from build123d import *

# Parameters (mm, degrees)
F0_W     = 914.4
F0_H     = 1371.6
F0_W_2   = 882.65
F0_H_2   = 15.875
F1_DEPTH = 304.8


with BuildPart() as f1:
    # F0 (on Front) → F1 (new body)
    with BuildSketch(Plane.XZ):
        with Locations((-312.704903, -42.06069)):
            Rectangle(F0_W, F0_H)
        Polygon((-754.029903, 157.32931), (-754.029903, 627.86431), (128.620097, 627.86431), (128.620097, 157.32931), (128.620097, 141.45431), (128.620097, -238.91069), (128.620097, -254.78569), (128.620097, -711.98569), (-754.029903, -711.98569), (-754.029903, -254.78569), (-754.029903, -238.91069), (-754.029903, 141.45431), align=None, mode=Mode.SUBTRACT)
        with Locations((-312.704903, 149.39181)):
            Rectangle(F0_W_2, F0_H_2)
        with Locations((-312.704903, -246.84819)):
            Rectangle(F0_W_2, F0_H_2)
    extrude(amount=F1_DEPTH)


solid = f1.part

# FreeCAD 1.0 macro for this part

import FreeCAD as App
import Part
import Sketcher
Q = App.Units.Quantity


def add_polygon(sketch, points):
    """Adds a closed chain of lines whose ends are joined by coincident constraints."""
    first, n = sketch.GeometryCount, len(points)
    for a, b in zip(points, points[1:] + points[:1]):
        sketch.addGeometry(Part.LineSegment(App.Vector(*a, 0), App.Vector(*b, 0)), False)
    for i in range(n):
        sketch.addConstraint(Sketcher.Constraint("Coincident", first + i, 2, first + (i + 1) % n, 1))

doc = App.newDocument("Part")
body = doc.addObject("PartDesign::Body", "Body")

# Sketch on XZ plane
sketch1 = doc.addObject("Sketcher::SketchObject", "Sketch")
body.addObject(sketch1)
sketch1.AttachmentSupport = (doc.XZ_Plane, [""])
sketch1.MapMode = "FlatFace"
add_polygon(sketch1, [(-770, 644), (-770, -728), (144, -728), (144, 644)])  # lines 0-3
add_polygon(sketch1, [(-754, -712), (-754, -255), (129, -255), (129, -712)])  # lines 4-7
add_polygon(sketch1, [(-754, -239), (-754, 141), (129, 141), (129, -239)])  # lines 8-11
add_polygon(sketch1, [(-754, 157), (-754, 628), (129, 628), (129, 157)])  # lines 12-15
sketch1.addConstraint(Sketcher.Constraint("Vertical", 0))
sketch1.addConstraint(Sketcher.Constraint("Horizontal", 1))
sketch1.addConstraint(Sketcher.Constraint("Vertical", 2))
sketch1.addConstraint(Sketcher.Constraint("Horizontal", 3))
sketch1.addConstraint(Sketcher.Constraint("Vertical", 4))
sketch1.addConstraint(Sketcher.Constraint("Horizontal", 5))
sketch1.addConstraint(Sketcher.Constraint("Vertical", 6))
sketch1.addConstraint(Sketcher.Constraint("Horizontal", 7))
sketch1.addConstraint(Sketcher.Constraint("Vertical", 8))
sketch1.addConstraint(Sketcher.Constraint("Horizontal", 9))
sketch1.addConstraint(Sketcher.Constraint("Vertical", 10))
sketch1.addConstraint(Sketcher.Constraint("Horizontal", 11))
sketch1.addConstraint(Sketcher.Constraint("Vertical", 12))
sketch1.addConstraint(Sketcher.Constraint("Horizontal", 13))
sketch1.addConstraint(Sketcher.Constraint("Vertical", 14))
sketch1.addConstraint(Sketcher.Constraint("Horizontal", 15))
sketch1.addConstraint(Sketcher.Constraint("Vertical", 7, 2, 8, 2))
sketch1.addConstraint(Sketcher.Constraint("Vertical", 6, 2, 9, 2))
sketch1.addConstraint(Sketcher.Constraint("Vertical", 11, 2, 12, 2))
sketch1.addConstraint(Sketcher.Constraint("Vertical", 10, 2, 13, 2))
sketch1.addConstraint(Sketcher.Constraint("DistanceX", 1, 1, 1, 2, Q("36 in")))
sketch1.addConstraint(Sketcher.Constraint("DistanceY", 0, 2, 0, 1, Q("54 in")))
sketch1.addConstraint(Sketcher.Constraint("DistanceY", 4, 1, 4, 2, Q("18 in")))
sketch1.addConstraint(Sketcher.Constraint("DistanceX", 5, 1, 5, 2, Q("34.75 in")))
sketch1.addConstraint(Sketcher.Constraint("DistanceY", 4, 2, 8, 2, Q("15.6 in")))
sketch1.addConstraint(Sketcher.Constraint("DistanceY", 10, 2, 14, 2, Q("15.6 in")))
sketch1.addConstraint(Sketcher.Constraint("DistanceY", 8, 1, 8, 2, Q("14.975 in")))
sketch1.addConstraint(Sketcher.Constraint("DistanceY", 12, 1, 12, 2, Q("18.525 in")))
sketch1.addConstraint(Sketcher.Constraint("DistanceY", 1, 2, 10, 2, Q("19.25 in")))
sketch1.addConstraint(Sketcher.Constraint("DistanceX", 0, 2, 4, 2, Q("0.625 in")))
sketch1.addConstraint(Sketcher.Constraint("DistanceY", 0, 2, -1, 1, Q("727.86069 mm")))
sketch1.addConstraint(Sketcher.Constraint("DistanceX", 0, 2, -1, 1, Q("769.904903 mm")))
pad1 = doc.addObject("PartDesign::Pad", "Pad")
body.addObject(pad1)
pad1.Profile = sketch1
pad1.Length = Q("12 in")

doc.recompute()
